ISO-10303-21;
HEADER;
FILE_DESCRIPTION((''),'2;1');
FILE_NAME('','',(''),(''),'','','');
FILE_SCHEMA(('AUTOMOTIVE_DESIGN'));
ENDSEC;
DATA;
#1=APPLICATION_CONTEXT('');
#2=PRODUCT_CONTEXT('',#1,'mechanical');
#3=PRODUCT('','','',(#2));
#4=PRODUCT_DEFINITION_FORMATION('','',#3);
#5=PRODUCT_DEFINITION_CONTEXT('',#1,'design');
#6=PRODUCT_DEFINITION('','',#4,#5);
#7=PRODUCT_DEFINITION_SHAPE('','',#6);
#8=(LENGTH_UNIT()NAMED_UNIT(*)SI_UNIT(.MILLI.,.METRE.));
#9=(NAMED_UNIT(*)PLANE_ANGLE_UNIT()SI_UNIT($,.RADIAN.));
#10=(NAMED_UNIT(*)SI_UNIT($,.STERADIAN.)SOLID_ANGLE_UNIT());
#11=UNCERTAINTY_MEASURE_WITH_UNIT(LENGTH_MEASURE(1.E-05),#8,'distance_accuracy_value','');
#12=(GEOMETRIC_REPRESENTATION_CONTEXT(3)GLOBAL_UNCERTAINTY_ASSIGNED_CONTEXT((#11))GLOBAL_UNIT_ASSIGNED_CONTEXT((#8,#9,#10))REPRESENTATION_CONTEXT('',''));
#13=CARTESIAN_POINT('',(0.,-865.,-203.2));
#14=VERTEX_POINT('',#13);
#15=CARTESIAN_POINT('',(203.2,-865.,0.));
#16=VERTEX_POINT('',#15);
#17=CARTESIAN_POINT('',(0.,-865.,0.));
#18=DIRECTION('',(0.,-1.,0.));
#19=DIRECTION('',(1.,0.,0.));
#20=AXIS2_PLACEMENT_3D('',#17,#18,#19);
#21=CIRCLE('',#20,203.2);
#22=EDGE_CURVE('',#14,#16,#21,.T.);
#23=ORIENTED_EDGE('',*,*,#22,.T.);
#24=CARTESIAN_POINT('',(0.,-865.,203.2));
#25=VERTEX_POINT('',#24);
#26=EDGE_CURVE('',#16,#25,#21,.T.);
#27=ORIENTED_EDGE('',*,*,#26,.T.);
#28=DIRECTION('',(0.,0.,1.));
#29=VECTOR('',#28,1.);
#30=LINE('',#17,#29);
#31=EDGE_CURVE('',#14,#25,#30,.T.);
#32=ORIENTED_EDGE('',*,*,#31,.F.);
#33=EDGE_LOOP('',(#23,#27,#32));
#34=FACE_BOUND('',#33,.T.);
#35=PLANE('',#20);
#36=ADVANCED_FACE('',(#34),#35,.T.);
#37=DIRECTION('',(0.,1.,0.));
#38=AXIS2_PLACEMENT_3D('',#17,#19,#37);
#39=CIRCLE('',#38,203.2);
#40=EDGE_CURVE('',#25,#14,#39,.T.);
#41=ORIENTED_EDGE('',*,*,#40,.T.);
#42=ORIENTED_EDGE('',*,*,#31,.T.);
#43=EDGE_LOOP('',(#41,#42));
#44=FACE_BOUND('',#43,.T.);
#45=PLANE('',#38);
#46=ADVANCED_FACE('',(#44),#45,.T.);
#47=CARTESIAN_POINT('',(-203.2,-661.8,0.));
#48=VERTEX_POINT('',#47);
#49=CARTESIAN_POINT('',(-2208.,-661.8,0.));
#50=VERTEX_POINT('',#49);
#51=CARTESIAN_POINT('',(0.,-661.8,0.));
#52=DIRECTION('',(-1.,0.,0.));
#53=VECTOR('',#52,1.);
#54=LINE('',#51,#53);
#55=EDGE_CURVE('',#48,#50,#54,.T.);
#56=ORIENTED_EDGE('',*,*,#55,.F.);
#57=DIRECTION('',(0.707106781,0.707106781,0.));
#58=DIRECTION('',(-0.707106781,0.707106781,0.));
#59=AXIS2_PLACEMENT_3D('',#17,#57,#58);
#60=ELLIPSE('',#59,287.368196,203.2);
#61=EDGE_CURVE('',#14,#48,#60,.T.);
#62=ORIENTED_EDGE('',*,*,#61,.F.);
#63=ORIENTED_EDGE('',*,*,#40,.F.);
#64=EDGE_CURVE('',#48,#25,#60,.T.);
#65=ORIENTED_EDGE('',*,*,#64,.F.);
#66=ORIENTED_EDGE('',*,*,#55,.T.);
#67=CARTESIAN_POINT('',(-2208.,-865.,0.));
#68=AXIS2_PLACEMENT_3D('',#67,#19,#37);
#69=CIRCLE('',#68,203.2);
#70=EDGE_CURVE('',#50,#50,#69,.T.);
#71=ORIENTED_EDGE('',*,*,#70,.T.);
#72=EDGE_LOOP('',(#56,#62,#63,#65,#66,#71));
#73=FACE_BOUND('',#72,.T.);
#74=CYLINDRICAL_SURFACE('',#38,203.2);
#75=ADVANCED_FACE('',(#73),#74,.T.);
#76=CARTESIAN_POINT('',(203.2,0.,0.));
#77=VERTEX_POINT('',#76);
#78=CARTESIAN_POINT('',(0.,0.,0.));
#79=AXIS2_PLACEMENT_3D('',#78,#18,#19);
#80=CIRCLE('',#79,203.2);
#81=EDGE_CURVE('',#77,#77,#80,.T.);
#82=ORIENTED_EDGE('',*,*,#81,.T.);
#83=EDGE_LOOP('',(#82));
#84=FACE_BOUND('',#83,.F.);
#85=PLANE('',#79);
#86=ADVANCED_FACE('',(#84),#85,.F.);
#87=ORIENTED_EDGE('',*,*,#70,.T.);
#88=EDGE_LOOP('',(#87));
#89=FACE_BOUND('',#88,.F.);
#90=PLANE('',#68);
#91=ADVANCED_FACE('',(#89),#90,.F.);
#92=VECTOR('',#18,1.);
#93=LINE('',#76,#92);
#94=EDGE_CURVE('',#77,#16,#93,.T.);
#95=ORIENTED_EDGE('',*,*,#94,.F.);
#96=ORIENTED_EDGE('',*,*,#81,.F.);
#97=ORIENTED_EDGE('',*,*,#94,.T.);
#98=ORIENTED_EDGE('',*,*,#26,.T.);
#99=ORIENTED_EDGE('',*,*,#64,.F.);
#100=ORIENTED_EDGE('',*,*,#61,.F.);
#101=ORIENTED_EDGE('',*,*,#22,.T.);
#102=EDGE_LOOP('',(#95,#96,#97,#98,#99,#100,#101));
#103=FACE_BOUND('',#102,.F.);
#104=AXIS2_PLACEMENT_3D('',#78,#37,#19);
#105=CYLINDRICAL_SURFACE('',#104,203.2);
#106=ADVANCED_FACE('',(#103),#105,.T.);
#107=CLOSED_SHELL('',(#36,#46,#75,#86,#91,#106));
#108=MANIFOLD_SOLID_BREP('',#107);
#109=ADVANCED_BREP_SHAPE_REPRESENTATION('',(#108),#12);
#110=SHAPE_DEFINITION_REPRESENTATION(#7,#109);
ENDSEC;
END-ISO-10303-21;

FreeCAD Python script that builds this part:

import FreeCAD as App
import Part
import Sketcher

doc = App.newDocument("Part")
body = doc.addObject("PartDesign::Body", "Body")

sketch1 = body.newObject("Sketcher::SketchObject", "Sketch")
sketch1.AttachmentSupport = (doc.getObject("XZ_Plane"), [""])
sketch1.MapMode = "FlatFace"
sketch1.addGeometry(Part.Circle(App.Vector(0, 0, 0), App.Vector(0, 0, 1), 203), False)
sketch1.addConstraint(Sketcher.Constraint("Coincident", 0, 3, -1, 1))
sketch1.addConstraint(Sketcher.Constraint("Diameter", 0, 406.4))
pad1 = body.newObject("PartDesign::Pad", "Pad")
pad1.Profile = sketch1
pad1.Length = 865

sketch2 = body.newObject("Sketcher::SketchObject", "Sketch001")
sketch2.AttachmentSupport = (doc.getObject("YZ_Plane"), [""])
sketch2.MapMode = "FlatFace"
sketch2.addGeometry(Part.Circle(App.Vector(-865, 0, 0), App.Vector(0, 0, 1), 203), False)
sketch2.addConstraint(Sketcher.Constraint("PointOnObject", 0, 3, -1))
sketch2.addConstraint(Sketcher.Constraint("Diameter", 0, 406.4))
sketch2.addConstraint(Sketcher.Constraint("DistanceX", 0, 3, -1, 1, 865.0))
pad2 = body.newObject("PartDesign::Pad", "Pad001")
pad2.Profile = sketch2
pad2.Length = 2208
pad2.Reversed = True

doc.recompute()
